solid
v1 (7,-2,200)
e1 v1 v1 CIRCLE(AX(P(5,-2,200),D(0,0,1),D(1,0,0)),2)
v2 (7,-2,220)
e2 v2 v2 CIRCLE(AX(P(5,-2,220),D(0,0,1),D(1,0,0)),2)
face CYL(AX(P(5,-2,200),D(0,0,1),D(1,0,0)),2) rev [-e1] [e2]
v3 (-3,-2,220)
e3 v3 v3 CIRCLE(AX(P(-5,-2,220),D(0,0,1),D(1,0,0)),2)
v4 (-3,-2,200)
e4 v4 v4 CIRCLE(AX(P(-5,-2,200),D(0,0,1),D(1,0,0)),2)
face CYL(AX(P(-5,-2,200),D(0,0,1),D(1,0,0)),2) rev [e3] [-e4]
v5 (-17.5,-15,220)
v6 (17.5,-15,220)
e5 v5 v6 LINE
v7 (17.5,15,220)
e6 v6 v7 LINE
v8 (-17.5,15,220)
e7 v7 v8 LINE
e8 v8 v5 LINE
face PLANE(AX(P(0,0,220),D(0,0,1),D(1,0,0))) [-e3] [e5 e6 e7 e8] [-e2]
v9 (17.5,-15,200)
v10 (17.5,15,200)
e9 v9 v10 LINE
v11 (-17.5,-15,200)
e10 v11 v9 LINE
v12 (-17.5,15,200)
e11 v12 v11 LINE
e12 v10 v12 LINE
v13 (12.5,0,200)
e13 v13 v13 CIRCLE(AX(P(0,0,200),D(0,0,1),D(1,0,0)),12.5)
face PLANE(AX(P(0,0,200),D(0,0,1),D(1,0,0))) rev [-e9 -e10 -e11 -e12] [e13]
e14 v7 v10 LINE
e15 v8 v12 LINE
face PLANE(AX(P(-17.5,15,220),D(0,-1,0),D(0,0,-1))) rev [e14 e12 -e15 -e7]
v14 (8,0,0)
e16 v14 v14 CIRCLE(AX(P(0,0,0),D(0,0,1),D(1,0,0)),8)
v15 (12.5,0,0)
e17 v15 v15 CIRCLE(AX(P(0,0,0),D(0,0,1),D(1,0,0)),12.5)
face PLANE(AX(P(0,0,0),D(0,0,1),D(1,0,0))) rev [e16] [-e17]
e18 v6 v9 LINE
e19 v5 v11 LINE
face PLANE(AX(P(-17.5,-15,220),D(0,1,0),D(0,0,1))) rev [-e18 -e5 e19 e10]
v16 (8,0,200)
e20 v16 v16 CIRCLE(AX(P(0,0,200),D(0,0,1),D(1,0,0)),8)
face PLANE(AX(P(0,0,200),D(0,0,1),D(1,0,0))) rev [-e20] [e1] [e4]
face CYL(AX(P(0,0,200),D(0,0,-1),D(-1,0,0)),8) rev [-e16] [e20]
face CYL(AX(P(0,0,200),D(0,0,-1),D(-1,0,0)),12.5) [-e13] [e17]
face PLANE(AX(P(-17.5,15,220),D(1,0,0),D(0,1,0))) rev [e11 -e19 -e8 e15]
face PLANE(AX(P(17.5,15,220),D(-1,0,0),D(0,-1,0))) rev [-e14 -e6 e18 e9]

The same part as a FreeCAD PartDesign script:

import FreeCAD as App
import Part
import Sketcher
Q = App.Units.Quantity

doc = App.newDocument("Part")
params = doc.addObject("Spreadsheet::Sheet", "Params")
for row, (alias, value) in enumerate([
    ("sketch1_diameter", "25 mm"),
    ("sketch1_diameter2", "16 mm"),
    ("pad1_length", "200 mm"),
    ("sketch2_width", "35 mm"),
    ("sketch2_height", "30 mm"),
    ("pad2_length", "20 mm"),
    ("sketch3_diameter", "4 mm"),
    ("pocket1_length", "20 mm"),
], start=1):
    params.set(f"A{row}", alias)
    params.set(f"B{row}", "=" + value)
    params.setAlias(f"B{row}", alias)

body = doc.addObject("PartDesign::Body", "Body")

# Sketch on XY plane
sketch1 = body.newObject("Sketcher::SketchObject", "Sketch")
sketch1.AttachmentSupport = (doc.getObject("XY_Plane"), [""])
sketch1.MapMode = "FlatFace"
sketch1.addGeometry([
    Part.Circle(App.Vector(0, 0, 0), App.Vector(0, 0, 1), 12.5),
    Part.Circle(App.Vector(0, 0, 0), App.Vector(0, 0, 1), 8),
], False)
sketch1.addConstraint([
    Sketcher.Constraint("Coincident", 0, 3, -1, 1),
    Sketcher.Constraint("Coincident", 1, 3, -1, 1),
    Sketcher.Constraint("Diameter", 0, Q("25 mm")),
    Sketcher.Constraint("Diameter", 1, Q("16 mm")),
])
sketch1.setExpression("Constraints[2]", "Params.sketch1_diameter")
sketch1.setExpression("Constraints[3]", "Params.sketch1_diameter2")
pad1 = body.newObject("PartDesign::Pad", "Pad")
pad1.Profile = sketch1
pad1.setExpression("Length", "Params.pad1_length")

# Sketch on XY plane
sketch2 = body.newObject("Sketcher::SketchObject", "Sketch001")
sketch2.AttachmentSupport = (doc.getObject("XY_Plane"), [""])
sketch2.MapMode = "FlatFace"
sketch2.AttachmentOffset = App.Placement(App.Vector(0, 0, 200), App.Rotation())
sketch2.addGeometry([
    Part.LineSegment(App.Vector(-17.5, 15, 0), App.Vector(-17.5, -15, 0)),
    Part.LineSegment(App.Vector(-17.5, -15, 0), App.Vector(17.5, -15, 0)),
    Part.LineSegment(App.Vector(17.5, -15, 0), App.Vector(17.5, 15, 0)),
    Part.LineSegment(App.Vector(17.5, 15, 0), App.Vector(-17.5, 15, 0)),
], False)
sketch2.addConstraint([
    Sketcher.Constraint("Coincident", 0, 2, 1, 1),
    Sketcher.Constraint("Coincident", 1, 2, 2, 1),
    Sketcher.Constraint("Coincident", 2, 2, 3, 1),
    Sketcher.Constraint("Coincident", 3, 2, 0, 1),
    Sketcher.Constraint("Vertical", 0),
    Sketcher.Constraint("Horizontal", 1),
    Sketcher.Constraint("Vertical", 2),
    Sketcher.Constraint("Horizontal", 3),
    Sketcher.Constraint("Symmetric", 0, 2, 2, 2, -1, 1),
    Sketcher.Constraint("DistanceX", 1, 1, 1, 2, Q("35 mm")),
    Sketcher.Constraint("DistanceY", 0, 2, 0, 1, Q("30 mm")),
])
sketch2.setExpression("Constraints[9]", "Params.sketch2_width")
sketch2.setExpression("Constraints[10]", "Params.sketch2_height")
pad2 = body.newObject("PartDesign::Pad", "Pad001")
pad2.Profile = sketch2
pad2.setExpression("Length", "Params.pad2_length")

# Sketch on XY plane
sketch3 = body.newObject("Sketcher::SketchObject", "Sketch002")
sketch3.AttachmentSupport = (doc.getObject("XY_Plane"), [""])
sketch3.MapMode = "FlatFace"
sketch3.AttachmentOffset = App.Placement(App.Vector(0, 0, 220), App.Rotation())
sketch3.addGeometry([
    Part.Circle(App.Vector(5, -2, 0), App.Vector(0, 0, 1), 2),
    Part.Circle(App.Vector(-5, -2, 0), App.Vector(0, 0, 1), 2),
], False)
sketch3.addConstraint([
    Sketcher.Constraint("Equal", 0, 1),
    Sketcher.Constraint("Symmetric", 0, 3, 1, 3, -2),
    Sketcher.Constraint("Diameter", 0, Q("4 mm")),
    Sketcher.Constraint("DistanceX", -1, 1, 0, 3, Q("5 mm")),
    Sketcher.Constraint("DistanceY", 0, 3, -1, 1, Q("2 mm")),
])
sketch3.setExpression("Constraints[2]", "Params.sketch3_diameter")
pocket1 = body.newObject("PartDesign::Pocket", "Pocket")
pocket1.Profile = sketch3
pocket1.setExpression("Length", "Params.pocket1_length")

doc.recompute()
